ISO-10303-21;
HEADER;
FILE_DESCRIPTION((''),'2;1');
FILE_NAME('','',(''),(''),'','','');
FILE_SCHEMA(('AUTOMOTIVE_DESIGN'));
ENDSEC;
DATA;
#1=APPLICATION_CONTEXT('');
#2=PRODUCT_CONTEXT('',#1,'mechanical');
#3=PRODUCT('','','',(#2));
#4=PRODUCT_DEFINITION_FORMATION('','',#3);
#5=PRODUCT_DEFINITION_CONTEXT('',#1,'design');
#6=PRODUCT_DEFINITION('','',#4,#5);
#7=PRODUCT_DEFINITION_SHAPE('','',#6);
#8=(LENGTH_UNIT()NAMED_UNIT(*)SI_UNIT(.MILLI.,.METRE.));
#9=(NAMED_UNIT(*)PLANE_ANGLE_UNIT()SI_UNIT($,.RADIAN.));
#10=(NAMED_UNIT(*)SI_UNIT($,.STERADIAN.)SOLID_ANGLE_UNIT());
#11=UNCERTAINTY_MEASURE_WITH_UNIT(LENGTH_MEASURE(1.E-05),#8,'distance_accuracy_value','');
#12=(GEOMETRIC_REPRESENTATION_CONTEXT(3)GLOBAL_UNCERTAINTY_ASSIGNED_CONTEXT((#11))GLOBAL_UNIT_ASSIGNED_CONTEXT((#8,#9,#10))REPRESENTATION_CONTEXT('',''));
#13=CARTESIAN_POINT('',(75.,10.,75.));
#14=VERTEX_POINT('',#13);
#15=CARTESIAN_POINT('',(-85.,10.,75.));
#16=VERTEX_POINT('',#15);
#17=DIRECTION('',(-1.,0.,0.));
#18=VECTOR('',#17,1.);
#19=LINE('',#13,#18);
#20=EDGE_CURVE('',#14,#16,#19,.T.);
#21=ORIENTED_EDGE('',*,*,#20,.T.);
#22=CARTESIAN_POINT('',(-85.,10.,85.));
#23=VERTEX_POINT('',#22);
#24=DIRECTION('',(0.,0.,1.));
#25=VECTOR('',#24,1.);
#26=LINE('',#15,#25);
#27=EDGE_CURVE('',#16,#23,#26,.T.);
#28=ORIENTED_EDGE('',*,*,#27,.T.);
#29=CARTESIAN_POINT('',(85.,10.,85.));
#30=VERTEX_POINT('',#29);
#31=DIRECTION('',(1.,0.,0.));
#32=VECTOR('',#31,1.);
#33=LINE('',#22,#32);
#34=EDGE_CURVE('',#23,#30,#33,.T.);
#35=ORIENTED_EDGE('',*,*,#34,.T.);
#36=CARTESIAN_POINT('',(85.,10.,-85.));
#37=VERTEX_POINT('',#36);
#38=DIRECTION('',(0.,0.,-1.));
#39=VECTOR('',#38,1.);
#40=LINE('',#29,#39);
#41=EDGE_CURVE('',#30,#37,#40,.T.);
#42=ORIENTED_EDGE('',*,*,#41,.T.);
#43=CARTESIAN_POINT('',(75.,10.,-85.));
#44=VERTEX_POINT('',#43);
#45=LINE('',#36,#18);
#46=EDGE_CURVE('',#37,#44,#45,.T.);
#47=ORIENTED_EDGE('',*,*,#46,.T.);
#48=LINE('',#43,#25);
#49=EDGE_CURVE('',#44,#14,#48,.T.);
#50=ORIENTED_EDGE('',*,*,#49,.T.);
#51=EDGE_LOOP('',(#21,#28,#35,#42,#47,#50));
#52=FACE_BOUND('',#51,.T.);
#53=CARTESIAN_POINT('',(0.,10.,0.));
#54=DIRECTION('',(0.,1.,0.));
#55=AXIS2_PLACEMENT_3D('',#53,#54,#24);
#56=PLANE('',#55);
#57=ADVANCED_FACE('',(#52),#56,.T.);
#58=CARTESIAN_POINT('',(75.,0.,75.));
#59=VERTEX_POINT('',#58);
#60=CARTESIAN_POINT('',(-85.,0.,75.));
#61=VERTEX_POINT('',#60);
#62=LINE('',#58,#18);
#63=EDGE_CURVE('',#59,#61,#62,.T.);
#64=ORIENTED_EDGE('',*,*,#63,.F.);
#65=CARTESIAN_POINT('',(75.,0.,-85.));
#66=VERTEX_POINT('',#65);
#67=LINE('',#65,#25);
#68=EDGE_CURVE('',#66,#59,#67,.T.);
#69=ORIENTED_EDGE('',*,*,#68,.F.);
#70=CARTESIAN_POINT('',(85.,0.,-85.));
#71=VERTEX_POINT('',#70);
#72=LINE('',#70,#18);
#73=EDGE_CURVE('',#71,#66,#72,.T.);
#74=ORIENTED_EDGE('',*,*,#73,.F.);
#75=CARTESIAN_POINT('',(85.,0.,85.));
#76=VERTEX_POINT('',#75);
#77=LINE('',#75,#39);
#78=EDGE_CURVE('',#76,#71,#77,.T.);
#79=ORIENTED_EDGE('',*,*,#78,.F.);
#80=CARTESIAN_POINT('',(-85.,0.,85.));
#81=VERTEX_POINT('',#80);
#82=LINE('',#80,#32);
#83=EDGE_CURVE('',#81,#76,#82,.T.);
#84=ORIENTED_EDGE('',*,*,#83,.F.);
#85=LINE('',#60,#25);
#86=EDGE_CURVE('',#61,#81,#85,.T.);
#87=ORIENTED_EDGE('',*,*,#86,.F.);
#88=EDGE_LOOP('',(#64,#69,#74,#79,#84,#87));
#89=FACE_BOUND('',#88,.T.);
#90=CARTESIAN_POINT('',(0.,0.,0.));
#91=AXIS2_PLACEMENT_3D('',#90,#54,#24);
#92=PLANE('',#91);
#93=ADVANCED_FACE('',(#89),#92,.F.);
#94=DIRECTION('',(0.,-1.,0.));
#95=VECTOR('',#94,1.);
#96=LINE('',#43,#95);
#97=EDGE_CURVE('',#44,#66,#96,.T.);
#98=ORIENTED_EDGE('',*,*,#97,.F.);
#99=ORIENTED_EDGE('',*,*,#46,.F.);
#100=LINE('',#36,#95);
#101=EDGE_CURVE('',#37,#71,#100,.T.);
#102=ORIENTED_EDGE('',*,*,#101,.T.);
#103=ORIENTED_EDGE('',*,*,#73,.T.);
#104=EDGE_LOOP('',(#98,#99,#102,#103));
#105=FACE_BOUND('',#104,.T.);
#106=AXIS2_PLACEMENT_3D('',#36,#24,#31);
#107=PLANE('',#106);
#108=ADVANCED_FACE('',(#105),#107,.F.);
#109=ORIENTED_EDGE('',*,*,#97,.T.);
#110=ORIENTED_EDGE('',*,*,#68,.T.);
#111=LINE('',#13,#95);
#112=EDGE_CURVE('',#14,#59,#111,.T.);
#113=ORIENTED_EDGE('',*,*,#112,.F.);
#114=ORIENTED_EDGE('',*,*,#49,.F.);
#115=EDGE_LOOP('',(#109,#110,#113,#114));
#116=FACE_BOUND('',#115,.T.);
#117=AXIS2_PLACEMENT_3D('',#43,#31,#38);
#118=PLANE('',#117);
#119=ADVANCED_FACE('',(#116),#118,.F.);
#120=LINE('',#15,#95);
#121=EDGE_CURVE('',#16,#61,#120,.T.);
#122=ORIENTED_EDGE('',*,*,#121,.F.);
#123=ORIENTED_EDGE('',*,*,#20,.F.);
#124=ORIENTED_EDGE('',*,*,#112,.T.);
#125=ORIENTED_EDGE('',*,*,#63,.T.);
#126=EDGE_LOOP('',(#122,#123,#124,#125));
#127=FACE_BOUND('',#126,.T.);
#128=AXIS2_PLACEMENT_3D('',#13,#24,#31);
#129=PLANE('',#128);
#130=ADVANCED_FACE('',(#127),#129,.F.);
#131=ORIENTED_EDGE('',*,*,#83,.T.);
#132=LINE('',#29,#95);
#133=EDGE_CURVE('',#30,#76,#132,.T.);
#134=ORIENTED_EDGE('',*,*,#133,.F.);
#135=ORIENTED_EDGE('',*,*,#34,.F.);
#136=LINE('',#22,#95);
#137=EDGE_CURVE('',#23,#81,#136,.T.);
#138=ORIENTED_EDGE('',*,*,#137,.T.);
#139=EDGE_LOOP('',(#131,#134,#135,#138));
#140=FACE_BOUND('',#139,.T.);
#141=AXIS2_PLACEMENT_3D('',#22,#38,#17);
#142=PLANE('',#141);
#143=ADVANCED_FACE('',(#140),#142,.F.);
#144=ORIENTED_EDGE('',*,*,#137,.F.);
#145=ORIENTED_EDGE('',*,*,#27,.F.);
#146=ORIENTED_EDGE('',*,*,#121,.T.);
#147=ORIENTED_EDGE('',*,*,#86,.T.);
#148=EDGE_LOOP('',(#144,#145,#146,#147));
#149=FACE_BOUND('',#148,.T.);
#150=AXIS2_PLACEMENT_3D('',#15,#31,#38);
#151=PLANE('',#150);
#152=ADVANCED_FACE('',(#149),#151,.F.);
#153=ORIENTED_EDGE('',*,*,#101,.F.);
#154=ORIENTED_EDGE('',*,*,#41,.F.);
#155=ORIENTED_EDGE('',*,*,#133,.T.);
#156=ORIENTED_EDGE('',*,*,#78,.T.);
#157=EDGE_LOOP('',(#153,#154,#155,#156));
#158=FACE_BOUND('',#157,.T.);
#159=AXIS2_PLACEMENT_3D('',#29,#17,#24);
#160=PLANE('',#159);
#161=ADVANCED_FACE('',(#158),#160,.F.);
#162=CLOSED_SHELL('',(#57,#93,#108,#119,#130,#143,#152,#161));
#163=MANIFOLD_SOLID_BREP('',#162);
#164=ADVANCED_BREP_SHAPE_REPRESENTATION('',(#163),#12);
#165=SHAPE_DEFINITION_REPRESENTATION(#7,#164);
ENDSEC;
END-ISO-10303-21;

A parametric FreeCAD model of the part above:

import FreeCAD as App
import Part
import Sketcher

doc = App.newDocument("Part")
body = doc.addObject("PartDesign::Body", "Body")

sketch1 = doc.addObject("Sketcher::SketchObject", "Sketch")
body.addObject(sketch1)
sketch1.AttachmentSupport = (doc.XZ_Plane, [""])
sketch1.MapMode = "FlatFace"
sketch1.addGeometry(Part.LineSegment(App.Vector(-85, 85, 0), App.Vector(85, 85, 0)), False)
sketch1.addGeometry(Part.LineSegment(App.Vector(85, 85, 0), App.Vector(85, -85, 0)), False)
sketch1.addGeometry(Part.LineSegment(App.Vector(85, -85, 0), App.Vector(75, -85, 0)), False)
sketch1.addGeometry(Part.LineSegment(App.Vector(75, -85, 0), App.Vector(75, 75, 0)), False)
sketch1.addGeometry(Part.LineSegment(App.Vector(75, 75, 0), App.Vector(-85, 75, 0)), False)
sketch1.addGeometry(Part.LineSegment(App.Vector(-85, 75, 0), App.Vector(-85, 85, 0)), False)
sketch1.addConstraint(Sketcher.Constraint("Coincident", 0, 2, 1, 1))
sketch1.addConstraint(Sketcher.Constraint("Coincident", 1, 2, 2, 1))
sketch1.addConstraint(Sketcher.Constraint("Coincident", 2, 2, 3, 1))
sketch1.addConstraint(Sketcher.Constraint("Coincident", 3, 2, 4, 1))
sketch1.addConstraint(Sketcher.Constraint("Coincident", 4, 2, 5, 1))
sketch1.addConstraint(Sketcher.Constraint("Coincident", 5, 2, 0, 1))
sketch1.addConstraint(Sketcher.Constraint("Horizontal", 0))
sketch1.addConstraint(Sketcher.Constraint("Vertical", 1))
sketch1.addConstraint(Sketcher.Constraint("Horizontal", 2))
sketch1.addConstraint(Sketcher.Constraint("Vertical", 3))
sketch1.addConstraint(Sketcher.Constraint("Horizontal", 4))
sketch1.addConstraint(Sketcher.Constraint("Vertical", 5))
sketch1.addConstraint(Sketcher.Constraint("Symmetric", 1, 2, 5, 2, -1, 1))
sketch1.addConstraint(Sketcher.Constraint("Equal", 0, 1))
sketch1.addConstraint(Sketcher.Constraint("Equal", 4, 3))
sketch1.addConstraint(Sketcher.Constraint("DistanceX", 0, 1, 0, 2, 170.0))
sketch1.addConstraint(Sketcher.Constraint("DistanceX", 2, 2, 2, 1, 10.0))
pad1 = doc.addObject("PartDesign::Pad", "Pad")
body.addObject(pad1)
pad1.Profile = sketch1
pad1.Length = 10
pad1.Reversed = True

doc.recompute()
